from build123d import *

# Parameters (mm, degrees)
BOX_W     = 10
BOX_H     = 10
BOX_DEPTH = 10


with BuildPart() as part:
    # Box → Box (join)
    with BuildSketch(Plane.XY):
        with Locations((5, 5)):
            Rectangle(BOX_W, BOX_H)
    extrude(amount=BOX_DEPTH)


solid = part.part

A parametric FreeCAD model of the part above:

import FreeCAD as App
import Part
import Sketcher

V = App.Vector

doc = App.newDocument("Part")
params = doc.addObject("Spreadsheet::Sheet", "Params")
for row, (alias, value) in enumerate([
    ("sketch1_width", "10 mm"),
    ("pad1_length", "10 mm"),
], start=1):
    params.set(f"A{row}", alias)
    params.set(f"B{row}", "=" + value)
    params.setAlias(f"B{row}", alias)

body = doc.addObject("PartDesign::Body", "Body")

# Sketch on XY plane
sketch1 = body.newObject("Sketcher::SketchObject", "Sketch")
sketch1.AttachmentSupport = (doc.getObject("XY_Plane"), [""])
sketch1.MapMode = "FlatFace"
sketch1.addGeometry(Part.LineSegment(V(0, 10, 0), V(0, 0, 0)), False)
sketch1.addGeometry(Part.LineSegment(V(0, 0, 0), V(10, 0, 0)), False)
sketch1.addGeometry(Part.LineSegment(V(10, 0, 0), V(10, 10, 0)), False)
sketch1.addGeometry(Part.LineSegment(V(10, 10, 0), V(0, 10, 0)), False)
sketch1.addConstraint(Sketcher.Constraint("Coincident", 0, 2, 1, 1))
sketch1.addConstraint(Sketcher.Constraint("Coincident", 1, 2, 2, 1))
sketch1.addConstraint(Sketcher.Constraint("Coincident", 2, 2, 3, 1))
sketch1.addConstraint(Sketcher.Constraint("Coincident", 3, 2, 0, 1))
sketch1.addConstraint(Sketcher.Constraint("Vertical", 0))
sketch1.addConstraint(Sketcher.Constraint("Horizontal", 1))
sketch1.addConstraint(Sketcher.Constraint("Vertical", 2))
sketch1.addConstraint(Sketcher.Constraint("Horizontal", 3))
sketch1.addConstraint(Sketcher.Constraint("Coincident", 0, 2, -1, 1))
sketch1.addConstraint(Sketcher.Constraint("Equal", 3, 0))
sketch1.addConstraint(Sketcher.Constraint("DistanceX", 1, 1, 1, 2, 10.0))
sketch1.setExpression("Constraints[10]", "Params.sketch1_width")
pad1 = body.newObject("PartDesign::Pad", "Pad")
pad1.Profile = sketch1
pad1.setExpression("Length", "Params.pad1_length")

doc.recompute()
